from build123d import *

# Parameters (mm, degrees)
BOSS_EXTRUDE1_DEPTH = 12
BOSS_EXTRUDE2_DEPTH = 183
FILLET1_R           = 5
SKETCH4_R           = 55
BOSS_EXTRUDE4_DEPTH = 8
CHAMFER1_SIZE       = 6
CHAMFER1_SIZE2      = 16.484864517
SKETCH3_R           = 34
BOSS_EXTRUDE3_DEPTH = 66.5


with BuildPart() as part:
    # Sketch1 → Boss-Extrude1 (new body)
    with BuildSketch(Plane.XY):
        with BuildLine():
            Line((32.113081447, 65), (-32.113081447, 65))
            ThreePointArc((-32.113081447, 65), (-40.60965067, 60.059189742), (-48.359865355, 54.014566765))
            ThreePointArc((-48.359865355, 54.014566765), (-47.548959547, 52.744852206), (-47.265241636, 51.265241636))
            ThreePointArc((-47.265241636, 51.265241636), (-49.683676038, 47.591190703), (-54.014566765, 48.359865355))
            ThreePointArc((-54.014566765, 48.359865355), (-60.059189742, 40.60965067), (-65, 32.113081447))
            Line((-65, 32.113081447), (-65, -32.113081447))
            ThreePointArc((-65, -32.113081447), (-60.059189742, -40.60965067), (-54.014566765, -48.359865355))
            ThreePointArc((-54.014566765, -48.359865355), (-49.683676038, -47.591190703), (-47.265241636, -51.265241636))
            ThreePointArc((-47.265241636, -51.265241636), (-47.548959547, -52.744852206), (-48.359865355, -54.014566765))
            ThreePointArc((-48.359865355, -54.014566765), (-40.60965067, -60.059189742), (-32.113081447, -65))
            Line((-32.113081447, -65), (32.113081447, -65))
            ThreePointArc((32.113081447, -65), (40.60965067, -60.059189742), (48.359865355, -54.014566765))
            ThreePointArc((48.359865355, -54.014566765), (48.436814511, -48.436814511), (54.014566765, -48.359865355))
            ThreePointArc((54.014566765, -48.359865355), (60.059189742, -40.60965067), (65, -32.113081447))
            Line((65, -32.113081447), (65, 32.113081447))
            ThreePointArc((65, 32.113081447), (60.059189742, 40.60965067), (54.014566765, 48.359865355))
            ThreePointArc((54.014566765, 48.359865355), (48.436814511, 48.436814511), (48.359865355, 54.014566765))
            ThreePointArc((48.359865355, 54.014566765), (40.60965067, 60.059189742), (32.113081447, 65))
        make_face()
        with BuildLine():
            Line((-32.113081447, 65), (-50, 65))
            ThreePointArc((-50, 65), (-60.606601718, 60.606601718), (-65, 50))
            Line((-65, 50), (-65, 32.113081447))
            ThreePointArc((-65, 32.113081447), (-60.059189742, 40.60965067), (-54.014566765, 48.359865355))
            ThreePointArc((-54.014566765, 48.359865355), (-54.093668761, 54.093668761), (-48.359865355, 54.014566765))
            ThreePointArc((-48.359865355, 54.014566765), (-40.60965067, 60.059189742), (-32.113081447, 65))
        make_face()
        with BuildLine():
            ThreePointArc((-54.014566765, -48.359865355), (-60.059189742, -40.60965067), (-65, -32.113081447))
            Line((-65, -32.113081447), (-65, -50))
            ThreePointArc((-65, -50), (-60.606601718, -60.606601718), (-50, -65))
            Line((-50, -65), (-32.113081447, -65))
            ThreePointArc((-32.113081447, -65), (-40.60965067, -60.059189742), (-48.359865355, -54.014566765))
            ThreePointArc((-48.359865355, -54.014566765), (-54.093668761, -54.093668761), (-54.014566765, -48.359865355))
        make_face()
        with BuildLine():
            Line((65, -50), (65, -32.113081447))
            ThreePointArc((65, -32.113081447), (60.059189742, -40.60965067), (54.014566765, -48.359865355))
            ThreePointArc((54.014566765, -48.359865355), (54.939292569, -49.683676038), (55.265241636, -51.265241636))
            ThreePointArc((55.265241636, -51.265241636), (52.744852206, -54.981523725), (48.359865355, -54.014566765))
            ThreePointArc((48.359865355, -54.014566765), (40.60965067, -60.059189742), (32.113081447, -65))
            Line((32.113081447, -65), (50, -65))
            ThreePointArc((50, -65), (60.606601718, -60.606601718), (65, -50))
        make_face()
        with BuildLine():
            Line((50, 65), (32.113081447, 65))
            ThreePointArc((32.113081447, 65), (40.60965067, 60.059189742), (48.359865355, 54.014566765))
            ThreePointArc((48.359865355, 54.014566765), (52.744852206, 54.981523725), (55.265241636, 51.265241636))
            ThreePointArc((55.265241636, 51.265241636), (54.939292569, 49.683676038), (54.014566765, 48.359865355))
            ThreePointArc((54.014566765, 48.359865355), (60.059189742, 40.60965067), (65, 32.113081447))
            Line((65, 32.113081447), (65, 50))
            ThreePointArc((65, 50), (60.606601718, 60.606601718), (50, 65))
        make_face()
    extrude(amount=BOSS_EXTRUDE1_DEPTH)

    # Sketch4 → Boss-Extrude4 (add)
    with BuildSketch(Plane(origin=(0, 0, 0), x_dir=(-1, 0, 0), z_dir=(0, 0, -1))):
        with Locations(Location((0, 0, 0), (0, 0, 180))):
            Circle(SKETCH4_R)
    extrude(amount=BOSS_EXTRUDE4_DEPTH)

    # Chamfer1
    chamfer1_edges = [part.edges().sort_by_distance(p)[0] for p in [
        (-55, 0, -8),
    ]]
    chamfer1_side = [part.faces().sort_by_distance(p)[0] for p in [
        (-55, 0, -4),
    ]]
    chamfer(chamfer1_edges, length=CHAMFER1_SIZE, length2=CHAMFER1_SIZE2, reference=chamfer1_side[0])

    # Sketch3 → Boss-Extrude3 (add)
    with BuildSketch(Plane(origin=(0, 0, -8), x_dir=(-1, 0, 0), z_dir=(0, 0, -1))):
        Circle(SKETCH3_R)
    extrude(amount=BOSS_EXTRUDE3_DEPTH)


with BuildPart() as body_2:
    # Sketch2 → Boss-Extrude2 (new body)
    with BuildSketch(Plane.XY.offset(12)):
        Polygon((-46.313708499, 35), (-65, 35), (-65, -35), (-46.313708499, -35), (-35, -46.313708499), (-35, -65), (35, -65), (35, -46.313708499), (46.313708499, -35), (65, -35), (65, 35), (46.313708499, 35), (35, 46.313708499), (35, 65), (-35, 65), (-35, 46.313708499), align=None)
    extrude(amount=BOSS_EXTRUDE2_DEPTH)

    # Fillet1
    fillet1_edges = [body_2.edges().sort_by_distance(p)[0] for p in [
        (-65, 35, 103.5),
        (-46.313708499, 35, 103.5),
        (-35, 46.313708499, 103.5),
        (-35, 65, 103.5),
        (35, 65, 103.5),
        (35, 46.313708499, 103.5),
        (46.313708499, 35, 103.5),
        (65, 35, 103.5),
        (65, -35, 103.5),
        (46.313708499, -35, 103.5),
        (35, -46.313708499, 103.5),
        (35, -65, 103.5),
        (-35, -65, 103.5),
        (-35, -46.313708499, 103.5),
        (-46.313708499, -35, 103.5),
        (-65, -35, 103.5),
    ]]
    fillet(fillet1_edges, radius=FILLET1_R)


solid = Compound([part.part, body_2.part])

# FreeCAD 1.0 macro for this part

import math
import FreeCAD as App
import Part
import Sketcher
from FreeCAD import Vector


def edges_at(feature, points):
    """Names of the edges that pass closest to the given points."""
    edges = feature.Shape.Edges
    near = lambda p: min(range(len(edges)), key=lambda i: edges[i].distToShape(Part.Vertex(*p))[0])
    return sorted({f"Edge{near(p) + 1}" for p in points})


def add_polygon(sketch, points):
    """Adds a closed chain of lines whose ends are joined by coincident constraints."""
    first, n = sketch.GeometryCount, len(points)
    for a, b in zip(points, points[1:] + points[:1]):
        sketch.addGeometry(Part.LineSegment(App.Vector(*a, 0), App.Vector(*b, 0)), False)
    for i in range(n):
        sketch.addConstraint(Sketcher.Constraint("Coincident", first + i, 2, first + (i + 1) % n, 1))

doc = App.newDocument("Part")
body = doc.addObject("PartDesign::Body", "Body")

# Sketch on XY plane
sketch1 = body.newObject("Sketcher::SketchObject", "Sketch")
sketch1.AttachmentSupport = (doc.getObject("XY_Plane"), [""])
sketch1.MapMode = "FlatFace"
sketch1.addGeometry(Part.ArcOfCircle(Part.Circle(Vector(-50, 50, 0), Vector(0, 0, 1), 15), math.radians(90), math.radians(180)), False)
sketch1.addGeometry(Part.LineSegment(Vector(-65, 50, 0), Vector(-65, -50, 0)), False)
sketch1.addGeometry(Part.ArcOfCircle(Part.Circle(Vector(-50, -50, 0), Vector(0, 0, 1), 15), math.radians(180), math.radians(270)), False)
sketch1.addGeometry(Part.LineSegment(Vector(-50, -65, 0), Vector(50, -65, 0)), False)
sketch1.addGeometry(Part.ArcOfCircle(Part.Circle(Vector(50, -50, 0), Vector(0, 0, 1), 15), math.radians(-90), math.radians(0)), False)
sketch1.addGeometry(Part.LineSegment(Vector(65, -50, 0), Vector(65, 50, 0)), False)
sketch1.addGeometry(Part.ArcOfCircle(Part.Circle(Vector(50, 50, 0), Vector(0, 0, 1), 15), math.radians(0), math.radians(90)), False)
sketch1.addGeometry(Part.LineSegment(Vector(50, 65, 0), Vector(-50, 65, 0)), False)
sketch1.addGeometry(Part.ArcOfCircle(Part.Circle(Vector(51.3, 51.3, 0), Vector(0, 0, 1), 4), math.radians(137), math.radians(313)), False)
sketch1.addGeometry(Part.ArcOfCircle(Part.Circle(Vector(51.3, 51.3, 0), Vector(0, 0, 1), 4), math.radians(0), math.radians(137)), False)
sketch1.addGeometry(Part.ArcOfCircle(Part.Circle(Vector(51.3, 51.3, 0), Vector(0, 0, 1), 4), math.radians(-47), math.radians(0)), False)
sketch1.addGeometry(Part.ArcOfCircle(Part.Circle(Vector(51.3, -51.3, 0), Vector(0, 0, 1), 4), math.radians(47), math.radians(223)), False)
sketch1.addGeometry(Part.ArcOfCircle(Part.Circle(Vector(51.3, -51.3, 0), Vector(0, 0, 1), 4), math.radians(0), math.radians(47)), False)
sketch1.addGeometry(Part.ArcOfCircle(Part.Circle(Vector(51.3, -51.3, 0), Vector(0, 0, 1), 4), math.radians(-137), math.radians(0)), False)
sketch1.addGeometry(Part.ArcOfCircle(Part.Circle(Vector(-51.3, -51.3, 0), Vector(0, 0, 1), 4), math.radians(0), math.radians(133)), False)
sketch1.addGeometry(Part.ArcOfCircle(Part.Circle(Vector(-51.3, -51.3, 0), Vector(0, 0, 1), 4), math.radians(-43), math.radians(0)), False)
sketch1.addGeometry(Part.ArcOfCircle(Part.Circle(Vector(-51.3, -51.3, 0), Vector(0, 0, 1), 4), math.radians(133), math.radians(317)), False)
sketch1.addGeometry(Part.ArcOfCircle(Part.Circle(Vector(-51.3, 51.3, 0), Vector(0, 0, 1), 4), math.radians(0), math.radians(43)), False)
sketch1.addGeometry(Part.ArcOfCircle(Part.Circle(Vector(-51.3, 51.3, 0), Vector(0, 0, 1), 4), math.radians(-133), math.radians(0)), False)
sketch1.addGeometry(Part.ArcOfCircle(Part.Circle(Vector(-51.3, 51.3, 0), Vector(0, 0, 1), 4), math.radians(43), math.radians(227)), False)
sketch1.addConstraint(Sketcher.Constraint("Tangent", 0, 2, 1, 1))
sketch1.addConstraint(Sketcher.Constraint("Tangent", 1, 2, 2, 1))
sketch1.addConstraint(Sketcher.Constraint("Tangent", 2, 2, 3, 1))
sketch1.addConstraint(Sketcher.Constraint("Tangent", 3, 2, 4, 1))
sketch1.addConstraint(Sketcher.Constraint("Tangent", 4, 2, 5, 1))
sketch1.addConstraint(Sketcher.Constraint("Tangent", 5, 2, 6, 1))
sketch1.addConstraint(Sketcher.Constraint("Tangent", 6, 2, 7, 1))
sketch1.addConstraint(Sketcher.Constraint("Tangent", 7, 2, 0, 1))
sketch1.addConstraint(Sketcher.Constraint("Tangent", 8, 1, 9, 2))
sketch1.addConstraint(Sketcher.Constraint("Tangent", 9, 1, 10, 2))
sketch1.addConstraint(Sketcher.Constraint("Tangent", 10, 1, 8, 2))
sketch1.addConstraint(Sketcher.Constraint("Tangent", 11, 1, 12, 2))
sketch1.addConstraint(Sketcher.Constraint("Tangent", 12, 1, 13, 2))
sketch1.addConstraint(Sketcher.Constraint("Tangent", 13, 1, 11, 2))
sketch1.addConstraint(Sketcher.Constraint("Tangent", 14, 1, 15, 2))
sketch1.addConstraint(Sketcher.Constraint("Tangent", 15, 1, 16, 2))
sketch1.addConstraint(Sketcher.Constraint("Tangent", 16, 1, 14, 2))
sketch1.addConstraint(Sketcher.Constraint("Tangent", 17, 1, 18, 2))
sketch1.addConstraint(Sketcher.Constraint("Tangent", 18, 1, 19, 2))
sketch1.addConstraint(Sketcher.Constraint("Tangent", 19, 1, 17, 2))
sketch1.addConstraint(Sketcher.Constraint("Vertical", 1))
sketch1.addConstraint(Sketcher.Constraint("Horizontal", 3))
sketch1.addConstraint(Sketcher.Constraint("Vertical", 5))
sketch1.addConstraint(Sketcher.Constraint("Horizontal", 7))
sketch1.addConstraint(Sketcher.Constraint("Equal", 0, 2))
sketch1.addConstraint(Sketcher.Constraint("Equal", 2, 4))
sketch1.addConstraint(Sketcher.Constraint("Equal", 4, 6))
sketch1.addConstraint(Sketcher.Constraint("Equal", 10, 11))
sketch1.addConstraint(Sketcher.Constraint("Equal", 13, 14))
sketch1.addConstraint(Sketcher.Constraint("Equal", 16, 17))
sketch1.addConstraint(Sketcher.Constraint("Symmetric", 0, 3, 4, 3, -1, 1))
sketch1.addConstraint(Sketcher.Constraint("Symmetric", 8, 3, 14, 3, -1, 1))
sketch1.addConstraint(Sketcher.Constraint("Symmetric", 11, 3, 17, 3, -1, 1))
sketch1.addConstraint(Sketcher.Constraint("Symmetric", 11, 3, 14, 3, -2))
sketch1.addConstraint(Sketcher.Constraint("Horizontal", 19, 3, 9, 1))
sketch1.addConstraint(Sketcher.Constraint("Horizontal", 16, 3, 12, 1))
sketch1.addConstraint(Sketcher.Constraint("Horizontal", 12, 1, 14, 1))
sketch1.addConstraint(Sketcher.Constraint("Horizontal", 13, 1, 15, 1))
sketch1.addConstraint(Sketcher.Constraint("Horizontal", 11, 1, 16, 1))
sketch1.addConstraint(Sketcher.Constraint("Horizontal", 9, 1, 17, 1))
sketch1.addConstraint(Sketcher.Constraint("Horizontal", 10, 1, 18, 1))
sketch1.addConstraint(Sketcher.Constraint("Horizontal", 8, 1, 19, 1))
sketch1.addConstraint(Sketcher.Constraint("Vertical", 10, 1, 11, 1))
sketch1.addConstraint(Sketcher.Constraint("Vertical", 8, 1, 13, 1))
sketch1.addConstraint(Sketcher.Constraint("Equal", 7, 1))
sketch1.addConstraint(Sketcher.Constraint("Radius", 0, 15.0))
sketch1.addConstraint(Sketcher.Constraint("Radius", 8, 4.0))
sketch1.addConstraint(Sketcher.Constraint("DistanceX", 3, 1, 3, 2, 100.0))
sketch1.addConstraint(Sketcher.Constraint("DistanceX", -1, 1, 8, 3, 51.265242))
sketch1.addConstraint(Sketcher.Constraint("DistanceY", -1, 1, 8, 3, 51.265242))
sketch1.addConstraint(Sketcher.Constraint("DistanceX", -1, 1, 8, 1, 48.359865))
sketch1.addConstraint(Sketcher.Constraint("DistanceX", -1, 1, 10, 1, 54.014567))
pad1 = body.newObject("PartDesign::Pad", "Pad")
pad1.Profile = sketch1
pad1.Length = 12

# Sketch on XY plane
sketch2 = body.newObject("Sketcher::SketchObject", "Sketch001")
sketch2.AttachmentSupport = (doc.getObject("XY_Plane"), [""])
sketch2.MapMode = "FlatFace"
sketch2.addGeometry(Part.Circle(Vector(0, 0, 0), Vector(0, 0, 1), 55), False)
sketch2.addConstraint(Sketcher.Constraint("Coincident", 0, 3, -1, 1))
sketch2.addConstraint(Sketcher.Constraint("Diameter", 0, 110.0))
pad2 = body.newObject("PartDesign::Pad", "Pad001")
pad2.Profile = sketch2
pad2.Length = 8
pad2.Reversed = True
doc.recompute()

chamfer = body.newObject("PartDesign::Chamfer", "Chamfer")
chamfer.Base = (pad2, edges_at(pad2, [(-55, 0, -8)]))
chamfer.ChamferType = "Two distances"
chamfer.Size = 6
chamfer.Size2 = 16.484865

# Sketch on XY plane
sketch3 = body.newObject("Sketcher::SketchObject", "Sketch002")
sketch3.AttachmentSupport = (doc.getObject("XY_Plane"), [""])
sketch3.MapMode = "FlatFace"
sketch3.AttachmentOffset = App.Placement(Vector(0, 0, -8), App.Rotation())
sketch3.addGeometry(Part.Circle(Vector(0, 0, 0), Vector(0, 0, 1), 34), False)
sketch3.addConstraint(Sketcher.Constraint("Coincident", 0, 3, -1, 1))
sketch3.addConstraint(Sketcher.Constraint("Diameter", 0, 68.0))
pad3 = body.newObject("PartDesign::Pad", "Pad002")
pad3.Profile = sketch3
pad3.Length = 66.5
pad3.Reversed = True
body2 = doc.addObject("PartDesign::Body", "Body001")

# Sketch on XY plane
sketch4 = body2.newObject("Sketcher::SketchObject", "Sketch003")
sketch4.AttachmentSupport = (doc.getObject("XY_Plane001"), [""])
sketch4.MapMode = "FlatFace"
sketch4.AttachmentOffset = App.Placement(Vector(0, 0, 12), App.Rotation())
add_polygon(sketch4, [(-46, 35), (-65, 35), (-65, -35), (-46, -35), (-35, -46), (-35, -65), (35, -65), (35, -46), (46, -35), (65, -35), (65, 35), (46, 35), (35, 46), (35, 65), (-35, 65), (-35, 46)])  # lines 0-15
sketch4.addConstraint(Sketcher.Constraint("Horizontal", 0))
sketch4.addConstraint(Sketcher.Constraint("Vertical", 1))
sketch4.addConstraint(Sketcher.Constraint("Horizontal", 2))
sketch4.addConstraint(Sketcher.Constraint("Vertical", 4))
sketch4.addConstraint(Sketcher.Constraint("Horizontal", 5))
sketch4.addConstraint(Sketcher.Constraint("Vertical", 6))
sketch4.addConstraint(Sketcher.Constraint("Horizontal", 8))
sketch4.addConstraint(Sketcher.Constraint("Vertical", 9))
sketch4.addConstraint(Sketcher.Constraint("Horizontal", 10))
sketch4.addConstraint(Sketcher.Constraint("Vertical", 12))
sketch4.addConstraint(Sketcher.Constraint("Horizontal", 13))
sketch4.addConstraint(Sketcher.Constraint("Vertical", 14))
sketch4.addConstraint(Sketcher.Constraint("Symmetric", 0, 2, 8, 2, -1, 1))
sketch4.addConstraint(Sketcher.Constraint("Symmetric", 2, 2, 10, 2, -1, 1))
sketch4.addConstraint(Sketcher.Constraint("Symmetric", 3, 2, 11, 2, -1, 1))
sketch4.addConstraint(Sketcher.Constraint("Symmetric", 5, 2, 13, 2, -1, 1))
sketch4.addConstraint(Sketcher.Constraint("Symmetric", 3, 2, 6, 2, -2))
sketch4.addConstraint(Sketcher.Constraint("Symmetric", 2, 2, 7, 2, -2))
sketch4.addConstraint(Sketcher.Constraint("Perpendicular", 3, 7))
sketch4.addConstraint(Sketcher.Constraint("Perpendicular", 11, 15))
sketch4.addConstraint(Sketcher.Constraint("Horizontal", 11, 2, 14, 2))
sketch4.addConstraint(Sketcher.Constraint("Equal", 13, 1))
sketch4.addConstraint(Sketcher.Constraint("Equal", 10, 4))
sketch4.addConstraint(Sketcher.Constraint("DistanceX", 5, 1, 5, 2, 70.0))
sketch4.addConstraint(Sketcher.Constraint("Distance", 3, 16.0))
sketch4.addConstraint(Sketcher.Constraint("DistanceX", 0, 2, -1, 1, 65.0))
pad4 = body2.newObject("PartDesign::Pad", "Pad003")
pad4.Profile = sketch4
pad4.Length = 183
doc.recompute()

fillet = body2.newObject("PartDesign::Fillet", "Fillet")
fillet.Base = (pad4, edges_at(pad4, [
    (-65, 35, 103.5),
    (-46.314, 35, 103.5),
    (-35, 46.314, 103.5),
    (-35, 65, 103.5),
    (35, 65, 103.5),
    (35, 46.314, 103.5),
    (46.314, 35, 103.5),
    (65, 35, 103.5),
    (65, -35, 103.5),
    (46.314, -35, 103.5),
    (35, -46.314, 103.5),
    (35, -65, 103.5),
    (-35, -65, 103.5),
    (-35, -46.314, 103.5),
    (-46.314, -35, 103.5),
    (-65, -35, 103.5),
]))
fillet.Radius = 5

doc.recompute()
